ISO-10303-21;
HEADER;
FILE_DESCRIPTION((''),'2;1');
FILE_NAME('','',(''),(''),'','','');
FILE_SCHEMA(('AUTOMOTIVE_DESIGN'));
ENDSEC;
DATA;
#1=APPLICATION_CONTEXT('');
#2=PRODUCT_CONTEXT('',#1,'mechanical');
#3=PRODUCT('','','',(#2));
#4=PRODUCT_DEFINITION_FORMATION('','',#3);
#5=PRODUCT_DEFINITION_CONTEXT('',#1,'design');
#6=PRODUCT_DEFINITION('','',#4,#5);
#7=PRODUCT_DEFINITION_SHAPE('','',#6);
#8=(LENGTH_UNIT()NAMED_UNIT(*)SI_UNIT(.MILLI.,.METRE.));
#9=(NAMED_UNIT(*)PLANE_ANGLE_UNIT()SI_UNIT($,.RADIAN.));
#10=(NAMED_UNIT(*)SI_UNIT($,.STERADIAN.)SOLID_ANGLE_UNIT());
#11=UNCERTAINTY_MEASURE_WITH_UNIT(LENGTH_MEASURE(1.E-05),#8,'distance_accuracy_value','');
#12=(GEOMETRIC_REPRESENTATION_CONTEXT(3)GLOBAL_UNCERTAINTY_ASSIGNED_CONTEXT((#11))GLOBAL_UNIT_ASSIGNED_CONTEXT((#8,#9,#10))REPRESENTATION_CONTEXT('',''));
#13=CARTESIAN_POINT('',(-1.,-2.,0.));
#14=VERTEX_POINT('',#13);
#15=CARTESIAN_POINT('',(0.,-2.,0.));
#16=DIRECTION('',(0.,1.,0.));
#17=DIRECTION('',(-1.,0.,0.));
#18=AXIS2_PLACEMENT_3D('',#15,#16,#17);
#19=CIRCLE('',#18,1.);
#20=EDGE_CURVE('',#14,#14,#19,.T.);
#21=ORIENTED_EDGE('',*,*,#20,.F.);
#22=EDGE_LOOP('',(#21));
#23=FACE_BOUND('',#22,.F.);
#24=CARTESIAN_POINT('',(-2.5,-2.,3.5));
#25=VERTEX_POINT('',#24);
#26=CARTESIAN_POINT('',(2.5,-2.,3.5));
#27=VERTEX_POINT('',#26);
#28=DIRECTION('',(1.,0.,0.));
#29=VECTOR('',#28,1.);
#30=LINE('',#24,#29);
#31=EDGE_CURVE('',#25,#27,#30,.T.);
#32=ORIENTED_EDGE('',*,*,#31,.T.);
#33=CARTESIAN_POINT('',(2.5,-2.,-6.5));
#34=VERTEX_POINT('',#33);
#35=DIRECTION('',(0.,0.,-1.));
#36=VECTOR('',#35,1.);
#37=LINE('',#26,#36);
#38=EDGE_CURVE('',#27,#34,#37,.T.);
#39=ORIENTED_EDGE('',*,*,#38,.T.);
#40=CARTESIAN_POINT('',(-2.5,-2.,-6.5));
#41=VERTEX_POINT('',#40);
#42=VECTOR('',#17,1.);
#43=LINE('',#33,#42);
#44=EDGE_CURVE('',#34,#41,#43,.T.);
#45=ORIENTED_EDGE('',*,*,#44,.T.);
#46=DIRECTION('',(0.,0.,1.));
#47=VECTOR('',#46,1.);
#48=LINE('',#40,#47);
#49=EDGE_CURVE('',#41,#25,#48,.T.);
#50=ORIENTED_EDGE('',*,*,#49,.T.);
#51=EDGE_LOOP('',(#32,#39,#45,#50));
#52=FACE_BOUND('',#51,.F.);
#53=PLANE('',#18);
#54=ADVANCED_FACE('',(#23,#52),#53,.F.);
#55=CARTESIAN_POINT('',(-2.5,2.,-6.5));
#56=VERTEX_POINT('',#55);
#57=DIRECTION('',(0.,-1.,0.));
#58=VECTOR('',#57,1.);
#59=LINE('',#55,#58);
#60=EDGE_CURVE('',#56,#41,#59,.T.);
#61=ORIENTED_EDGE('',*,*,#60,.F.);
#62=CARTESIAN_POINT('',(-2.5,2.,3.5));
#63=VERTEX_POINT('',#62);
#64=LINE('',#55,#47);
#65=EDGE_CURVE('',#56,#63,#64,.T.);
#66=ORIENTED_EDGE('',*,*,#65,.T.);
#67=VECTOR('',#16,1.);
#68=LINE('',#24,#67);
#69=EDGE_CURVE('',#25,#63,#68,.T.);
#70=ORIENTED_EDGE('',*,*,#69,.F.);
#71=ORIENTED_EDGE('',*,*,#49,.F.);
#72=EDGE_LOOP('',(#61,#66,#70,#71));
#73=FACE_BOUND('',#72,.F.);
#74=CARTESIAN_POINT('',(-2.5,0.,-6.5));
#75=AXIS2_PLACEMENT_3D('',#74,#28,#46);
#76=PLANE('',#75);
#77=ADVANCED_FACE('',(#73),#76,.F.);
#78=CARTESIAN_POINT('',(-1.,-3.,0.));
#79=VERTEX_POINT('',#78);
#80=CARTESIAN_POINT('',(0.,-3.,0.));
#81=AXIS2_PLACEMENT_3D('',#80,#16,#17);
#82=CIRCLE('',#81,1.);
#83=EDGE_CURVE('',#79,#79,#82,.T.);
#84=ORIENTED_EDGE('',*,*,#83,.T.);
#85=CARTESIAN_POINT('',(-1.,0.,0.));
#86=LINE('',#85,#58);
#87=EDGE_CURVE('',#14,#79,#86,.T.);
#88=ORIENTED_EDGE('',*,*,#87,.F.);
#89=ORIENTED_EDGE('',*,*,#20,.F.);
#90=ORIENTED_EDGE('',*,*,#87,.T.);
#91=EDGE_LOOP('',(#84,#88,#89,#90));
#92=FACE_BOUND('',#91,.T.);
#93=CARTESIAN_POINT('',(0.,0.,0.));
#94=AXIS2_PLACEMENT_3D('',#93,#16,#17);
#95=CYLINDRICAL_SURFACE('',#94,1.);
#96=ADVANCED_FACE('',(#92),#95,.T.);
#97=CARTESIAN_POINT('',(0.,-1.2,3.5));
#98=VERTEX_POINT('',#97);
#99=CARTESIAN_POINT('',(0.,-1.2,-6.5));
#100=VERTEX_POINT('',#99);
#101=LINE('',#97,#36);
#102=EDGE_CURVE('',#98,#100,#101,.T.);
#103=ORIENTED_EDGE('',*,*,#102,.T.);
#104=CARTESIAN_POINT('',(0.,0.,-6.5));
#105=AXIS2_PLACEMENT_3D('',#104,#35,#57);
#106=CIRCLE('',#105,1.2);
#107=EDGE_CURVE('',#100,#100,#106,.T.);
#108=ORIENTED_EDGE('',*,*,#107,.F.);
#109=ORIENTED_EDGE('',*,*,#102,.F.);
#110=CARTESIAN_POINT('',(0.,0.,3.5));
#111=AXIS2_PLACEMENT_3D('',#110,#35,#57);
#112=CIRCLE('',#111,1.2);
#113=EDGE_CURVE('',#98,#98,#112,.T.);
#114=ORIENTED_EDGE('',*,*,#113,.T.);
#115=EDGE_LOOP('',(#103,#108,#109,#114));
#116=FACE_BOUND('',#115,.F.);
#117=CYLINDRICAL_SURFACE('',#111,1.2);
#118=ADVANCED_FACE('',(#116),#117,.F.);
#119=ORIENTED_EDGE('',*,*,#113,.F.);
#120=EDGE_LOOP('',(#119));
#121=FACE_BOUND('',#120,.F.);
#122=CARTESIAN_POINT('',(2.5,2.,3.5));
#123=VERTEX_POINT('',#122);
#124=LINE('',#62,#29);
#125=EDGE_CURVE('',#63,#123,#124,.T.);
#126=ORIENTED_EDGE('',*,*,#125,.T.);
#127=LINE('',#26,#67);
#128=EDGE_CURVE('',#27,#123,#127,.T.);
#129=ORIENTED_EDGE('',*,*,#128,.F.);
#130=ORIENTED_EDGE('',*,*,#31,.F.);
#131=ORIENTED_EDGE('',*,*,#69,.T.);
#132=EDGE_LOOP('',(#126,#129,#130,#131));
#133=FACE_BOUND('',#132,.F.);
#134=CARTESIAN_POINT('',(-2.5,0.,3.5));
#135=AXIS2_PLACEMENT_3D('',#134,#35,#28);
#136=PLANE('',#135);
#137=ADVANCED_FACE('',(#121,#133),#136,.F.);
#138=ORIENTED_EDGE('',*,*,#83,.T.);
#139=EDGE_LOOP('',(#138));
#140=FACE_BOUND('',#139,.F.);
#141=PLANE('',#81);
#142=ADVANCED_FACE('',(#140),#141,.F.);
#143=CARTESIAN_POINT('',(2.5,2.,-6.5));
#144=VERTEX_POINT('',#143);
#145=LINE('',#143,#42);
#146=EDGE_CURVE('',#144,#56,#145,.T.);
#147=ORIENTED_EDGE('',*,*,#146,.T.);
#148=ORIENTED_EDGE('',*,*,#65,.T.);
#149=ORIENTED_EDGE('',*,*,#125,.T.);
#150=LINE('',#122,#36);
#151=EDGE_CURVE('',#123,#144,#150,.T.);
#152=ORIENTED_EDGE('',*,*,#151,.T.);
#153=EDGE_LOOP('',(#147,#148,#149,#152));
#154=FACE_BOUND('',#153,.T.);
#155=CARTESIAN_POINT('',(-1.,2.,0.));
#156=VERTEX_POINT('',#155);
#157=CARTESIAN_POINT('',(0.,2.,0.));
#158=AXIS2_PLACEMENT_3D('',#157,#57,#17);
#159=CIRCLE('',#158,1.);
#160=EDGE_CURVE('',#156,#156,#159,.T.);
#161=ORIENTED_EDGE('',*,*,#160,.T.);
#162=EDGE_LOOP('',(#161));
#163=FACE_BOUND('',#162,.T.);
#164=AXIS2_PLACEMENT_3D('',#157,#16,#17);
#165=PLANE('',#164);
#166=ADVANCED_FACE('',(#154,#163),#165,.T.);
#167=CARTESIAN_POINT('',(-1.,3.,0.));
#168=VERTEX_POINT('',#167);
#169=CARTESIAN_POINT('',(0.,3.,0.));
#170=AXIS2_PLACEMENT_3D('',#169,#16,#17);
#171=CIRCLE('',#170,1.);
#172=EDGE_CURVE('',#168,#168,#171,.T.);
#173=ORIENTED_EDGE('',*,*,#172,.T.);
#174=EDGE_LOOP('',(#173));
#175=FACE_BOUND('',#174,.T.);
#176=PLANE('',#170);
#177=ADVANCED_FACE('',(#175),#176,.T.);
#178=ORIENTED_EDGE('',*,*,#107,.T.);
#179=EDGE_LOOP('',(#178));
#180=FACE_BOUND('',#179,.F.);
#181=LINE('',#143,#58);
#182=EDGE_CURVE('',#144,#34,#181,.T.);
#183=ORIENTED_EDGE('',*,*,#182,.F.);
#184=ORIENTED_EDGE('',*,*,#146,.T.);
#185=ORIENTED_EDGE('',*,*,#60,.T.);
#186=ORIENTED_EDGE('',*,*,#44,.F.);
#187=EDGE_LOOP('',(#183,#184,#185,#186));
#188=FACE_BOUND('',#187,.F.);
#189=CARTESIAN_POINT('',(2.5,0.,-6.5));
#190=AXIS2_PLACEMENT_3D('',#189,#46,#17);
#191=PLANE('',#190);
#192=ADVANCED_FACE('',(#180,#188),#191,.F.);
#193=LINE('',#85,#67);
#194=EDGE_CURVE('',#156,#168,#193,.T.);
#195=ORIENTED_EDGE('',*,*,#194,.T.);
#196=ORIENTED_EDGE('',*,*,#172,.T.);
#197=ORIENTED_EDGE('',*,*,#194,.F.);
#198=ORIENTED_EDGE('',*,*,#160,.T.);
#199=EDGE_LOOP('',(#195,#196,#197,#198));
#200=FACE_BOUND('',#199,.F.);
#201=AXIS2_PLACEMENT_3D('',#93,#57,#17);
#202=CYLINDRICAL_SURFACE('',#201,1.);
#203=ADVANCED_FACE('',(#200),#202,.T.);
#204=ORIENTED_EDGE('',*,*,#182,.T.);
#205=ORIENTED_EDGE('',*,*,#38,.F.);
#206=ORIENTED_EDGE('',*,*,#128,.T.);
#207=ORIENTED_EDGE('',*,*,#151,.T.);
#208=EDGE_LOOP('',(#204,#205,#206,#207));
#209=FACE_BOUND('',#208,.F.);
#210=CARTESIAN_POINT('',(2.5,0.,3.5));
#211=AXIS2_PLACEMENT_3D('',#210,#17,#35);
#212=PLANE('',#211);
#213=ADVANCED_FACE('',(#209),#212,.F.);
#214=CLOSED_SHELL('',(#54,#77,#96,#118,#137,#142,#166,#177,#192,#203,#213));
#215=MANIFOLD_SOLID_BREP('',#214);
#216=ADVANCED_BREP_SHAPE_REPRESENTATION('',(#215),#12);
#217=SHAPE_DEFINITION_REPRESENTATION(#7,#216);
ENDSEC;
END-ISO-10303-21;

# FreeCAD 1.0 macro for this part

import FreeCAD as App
import Part
import Sketcher
from FreeCAD import Vector
Q = App.Units.Quantity

doc = App.newDocument("Part")
body = doc.addObject("PartDesign::Body", "Body")

# Sketch on XZ plane
sketch1 = doc.addObject("Sketcher::SketchObject", "Sketch")
body.addObject(sketch1)
sketch1.AttachmentSupport = (doc.XZ_Plane, [""])
sketch1.MapMode = "FlatFace"
sketch1.addGeometry([
    Part.LineSegment(Vector(-2, -6, 0), Vector(-2, 4, 0)),
    Part.LineSegment(Vector(-2, 4, 0), Vector(2, 4, 0)),
    Part.LineSegment(Vector(2, 4, 0), Vector(2, -6, 0)),
    Part.LineSegment(Vector(2, -6, 0), Vector(-2, -6, 0)),
], False)
sketch1.addConstraint([
    Sketcher.Constraint("Coincident", 0, 2, 1, 1),
    Sketcher.Constraint("Coincident", 1, 2, 2, 1),
    Sketcher.Constraint("Coincident", 2, 2, 3, 1),
    Sketcher.Constraint("Coincident", 3, 2, 0, 1),
    Sketcher.Constraint("Vertical", 0),
    Sketcher.Constraint("Horizontal", 1),
    Sketcher.Constraint("Vertical", 2),
    Sketcher.Constraint("Horizontal", 3),
    Sketcher.Constraint("DistanceX", 1, 1, 1, 2, Q("5 mm")),
    Sketcher.Constraint("DistanceY", 0, 1, 0, 2, Q("10 mm")),
    Sketcher.Constraint("DistanceY", -1, 1, 0, 2, Q("3.5 mm")),
    Sketcher.Constraint("DistanceX", 0, 2, -1, 1, Q("2.5 mm")),
])
pad1 = doc.addObject("PartDesign::Pad", "Pad")
body.addObject(pad1)
pad1.Profile = sketch1
pad1.Length = 4
pad1.Midplane = True

# Sketch on XZ plane
sketch2 = doc.addObject("Sketcher::SketchObject", "Sketch001")
body.addObject(sketch2)
sketch2.AttachmentSupport = (doc.XZ_Plane, [""])
sketch2.MapMode = "FlatFace"
sketch2.addGeometry(Part.Circle(Vector(0, 0, 0), Vector(0, 0, 1), 1), False)
sketch2.addConstraint([
    Sketcher.Constraint("Coincident", 0, 3, -1, 1),
    Sketcher.Constraint("Diameter", 0, Q("2 mm")),
])
pad2 = doc.addObject("PartDesign::Pad", "Pad001")
body.addObject(pad2)
pad2.Profile = sketch2
pad2.Length = 6
pad2.Midplane = True

# Sketch on XY plane
sketch3 = doc.addObject("Sketcher::SketchObject", "Sketch002")
body.addObject(sketch3)
sketch3.AttachmentSupport = (doc.XY_Plane, [""])
sketch3.MapMode = "FlatFace"
sketch3.AttachmentOffset = App.Placement(Vector(0, 0, 3.5), App.Rotation())
sketch3.addGeometry(Part.Circle(Vector(0, 0, 0), Vector(0, 0, 1), 1.2), False)
sketch3.addConstraint([
    Sketcher.Constraint("Coincident", 0, 3, -1, 1),
    Sketcher.Constraint("Diameter", 0, Q("2.4 mm")),
])
doc.recompute()
hole = doc.addObject("PartDesign::Hole", "Hole")
body.addObject(hole)
hole.Profile = sketch3
hole.ThreadType = "None"
hole.Diameter = 2.4
hole.DepthType = "ThroughAll"

doc.recompute()
